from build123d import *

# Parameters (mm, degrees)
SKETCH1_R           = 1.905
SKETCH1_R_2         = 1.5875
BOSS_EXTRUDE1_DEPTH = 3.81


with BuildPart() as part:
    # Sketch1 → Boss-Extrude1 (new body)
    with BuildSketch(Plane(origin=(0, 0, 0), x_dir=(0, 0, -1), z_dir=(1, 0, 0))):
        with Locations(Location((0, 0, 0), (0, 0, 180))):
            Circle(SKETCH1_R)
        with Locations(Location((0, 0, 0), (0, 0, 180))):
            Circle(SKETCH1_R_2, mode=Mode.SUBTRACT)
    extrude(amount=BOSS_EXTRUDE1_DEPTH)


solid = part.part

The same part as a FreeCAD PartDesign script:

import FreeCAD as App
import Part
import Sketcher

V = App.Vector
Q = App.Units.Quantity

doc = App.newDocument("Part")
body = doc.addObject("PartDesign::Body", "Body")

# Sketch on YZ plane
sketch1 = body.newObject("Sketcher::SketchObject", "Sketch")
sketch1.AttachmentSupport = (doc.getObject("YZ_Plane"), [""])
sketch1.MapMode = "FlatFace"
sketch1.addGeometry([
    Part.Circle(V(0, 0, 0), V(0, 0, 1), 1.9),
    Part.Circle(V(0, 0, 0), V(0, 0, 1), 1.6),
], False)
sketch1.addConstraint([
    Sketcher.Constraint("Coincident", 0, 3, -1, 1),
    Sketcher.Constraint("Coincident", 1, 3, -1, 1),
    Sketcher.Constraint("Diameter", 0, Q("0.15 in")),
    Sketcher.Constraint("Diameter", 1, Q("0.125 in")),
])
pad1 = body.newObject("PartDesign::Pad", "Pad")
pad1.Profile = sketch1
pad1.Length = Q("0.15 in")

doc.recompute()
